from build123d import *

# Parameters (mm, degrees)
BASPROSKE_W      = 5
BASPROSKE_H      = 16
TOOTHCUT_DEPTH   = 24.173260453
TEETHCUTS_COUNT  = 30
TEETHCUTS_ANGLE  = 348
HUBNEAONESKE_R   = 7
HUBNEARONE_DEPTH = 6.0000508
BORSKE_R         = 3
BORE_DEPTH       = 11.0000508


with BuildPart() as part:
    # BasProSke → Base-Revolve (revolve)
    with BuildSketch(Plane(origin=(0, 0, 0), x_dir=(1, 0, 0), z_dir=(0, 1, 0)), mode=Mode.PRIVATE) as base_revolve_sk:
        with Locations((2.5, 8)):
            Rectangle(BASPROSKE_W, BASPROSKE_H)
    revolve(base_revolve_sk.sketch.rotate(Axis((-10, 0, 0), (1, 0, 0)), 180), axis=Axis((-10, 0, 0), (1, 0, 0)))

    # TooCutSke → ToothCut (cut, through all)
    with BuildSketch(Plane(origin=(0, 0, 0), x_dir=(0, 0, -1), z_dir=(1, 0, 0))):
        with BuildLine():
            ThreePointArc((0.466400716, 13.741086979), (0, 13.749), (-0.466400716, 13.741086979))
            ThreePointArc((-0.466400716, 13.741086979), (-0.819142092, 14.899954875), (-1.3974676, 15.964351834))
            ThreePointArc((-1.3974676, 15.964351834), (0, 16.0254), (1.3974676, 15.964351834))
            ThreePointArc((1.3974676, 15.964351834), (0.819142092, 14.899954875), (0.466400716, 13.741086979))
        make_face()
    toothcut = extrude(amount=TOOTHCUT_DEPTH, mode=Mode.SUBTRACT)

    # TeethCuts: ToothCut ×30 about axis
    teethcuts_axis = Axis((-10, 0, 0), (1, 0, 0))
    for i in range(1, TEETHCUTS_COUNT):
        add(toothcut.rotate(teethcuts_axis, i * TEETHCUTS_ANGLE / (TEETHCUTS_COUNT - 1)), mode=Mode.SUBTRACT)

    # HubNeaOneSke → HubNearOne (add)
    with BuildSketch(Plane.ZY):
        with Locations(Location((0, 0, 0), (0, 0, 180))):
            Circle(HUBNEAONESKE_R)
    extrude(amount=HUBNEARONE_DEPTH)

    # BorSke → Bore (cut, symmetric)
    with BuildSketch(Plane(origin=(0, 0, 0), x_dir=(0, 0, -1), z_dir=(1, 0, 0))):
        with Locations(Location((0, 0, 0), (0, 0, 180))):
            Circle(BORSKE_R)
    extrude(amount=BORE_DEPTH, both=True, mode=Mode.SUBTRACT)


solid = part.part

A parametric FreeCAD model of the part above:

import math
import FreeCAD as App
import Part
import Sketcher


def add_polygon(sketch, points):
    """Adds a closed chain of lines whose ends are joined by coincident constraints."""
    first, n = sketch.GeometryCount, len(points)
    for a, b in zip(points, points[1:] + points[:1]):
        sketch.addGeometry(Part.LineSegment(App.Vector(*a, 0), App.Vector(*b, 0)), False)
    for i in range(n):
        sketch.addConstraint(Sketcher.Constraint("Coincident", first + i, 2, first + (i + 1) % n, 1))

doc = App.newDocument("Part")
body = doc.addObject("PartDesign::Body", "Body")

sketch1 = body.newObject("Sketcher::SketchObject", "Sketch")
sketch1.AttachmentSupport = (doc.getObject("XZ_Plane"), [""])
sketch1.MapMode = "FlatFace"
add_polygon(sketch1, [(0, -16), (0, 0), (5, 0), (5, -16)])
sketch1.addConstraint([
    Sketcher.Constraint("Vertical", 0),
    Sketcher.Constraint("Horizontal", 1),
    Sketcher.Constraint("Vertical", 2),
    Sketcher.Constraint("Horizontal", 3),
    Sketcher.Constraint("Coincident", 0, 2, -1, 1),
    Sketcher.Constraint("DistanceX", 1, 1, 1, 2, 5.0),
    Sketcher.Constraint("DistanceY", 0, 1, 0, 2, 16.0),
])
revolution = body.newObject("PartDesign::Revolution", "Revolution")
revolution.Profile = sketch1
revolution.ReferenceAxis = (sketch1, ["H_Axis"])
revolution.Angle = 360

sketch2 = body.newObject("Sketcher::SketchObject", "Sketch001")
sketch2.AttachmentSupport = (doc.getObject("YZ_Plane"), [""])
sketch2.MapMode = "FlatFace"
sketch2.addGeometry([
    Part.ArcOfCircle(Part.Circle(App.Vector(0, 0, 0), App.Vector(0, 0, 1), 13.7), math.radians(-1.94), math.radians(1.94)),
    Part.ArcOfCircle(Part.Circle(App.Vector(12.6, -6.4, 0), App.Vector(0, 0, 1), 6), math.radians(56), math.radians(79)),
    Part.ArcOfCircle(Part.Circle(App.Vector(0, 0, 0), App.Vector(0, 0, 1), 16), math.radians(-5), math.radians(5)),
    Part.ArcOfCircle(Part.Circle(App.Vector(12.6, 6.4, 0), App.Vector(0, 0, 1), 6), math.radians(-79), math.radians(-56)),
], False)
sketch2.addConstraint([
    Sketcher.Constraint("Coincident", 0, 1, 1, 2),
    Sketcher.Constraint("Coincident", 1, 1, 2, 1),
    Sketcher.Constraint("Coincident", 2, 2, 3, 2),
    Sketcher.Constraint("Coincident", 3, 1, 0, 2),
    Sketcher.Constraint("Coincident", 0, 3, -1, 1),
    Sketcher.Constraint("Coincident", 2, 3, -1, 1),
    Sketcher.Constraint("Equal", 1, 3),
    Sketcher.Constraint("Symmetric", 1, 3, 3, 3, -1),
    Sketcher.Constraint("Radius", 1, 6.0),
    Sketcher.Constraint("Radius", 0, 13.749),
    Sketcher.Constraint("Radius", 2, 16.0254),
    Sketcher.Constraint("DistanceY", 0, 1, -1, 1, 0.466401),
    Sketcher.Constraint("DistanceX", -1, 1, 1, 1, 15.964352),
])
pocket1 = body.newObject("PartDesign::Pocket", "Pocket")
pocket1.Profile = sketch2
pocket1.Type = "ThroughAll"
pocket1.Reversed = True
doc.recompute()

polarpattern = body.newObject("PartDesign::PolarPattern", "PolarPattern")
polarpattern.Originals = [pocket1]
polarpattern.Axis = (doc.getObject("X_Axis"), [""])
polarpattern.Angle = 360
polarpattern.Occurrences = 30
body.Tip = polarpattern

sketch3 = body.newObject("Sketcher::SketchObject", "Sketch002")
sketch3.AttachmentSupport = (doc.getObject("YZ_Plane"), [""])
sketch3.MapMode = "FlatFace"
sketch3.addGeometry(Part.Circle(App.Vector(0, 0, 0), App.Vector(0, 0, 1), 7), False)
sketch3.addConstraint([
    Sketcher.Constraint("Coincident", 0, 3, -1, 1),
    Sketcher.Constraint("Diameter", 0, 14.0),
])
pad1 = body.newObject("PartDesign::Pad", "Pad")
pad1.Profile = sketch3
pad1.Length = 6.000051
pad1.Reversed = True

sketch4 = body.newObject("Sketcher::SketchObject", "Sketch003")
sketch4.AttachmentSupport = (doc.getObject("YZ_Plane"), [""])
sketch4.MapMode = "FlatFace"
sketch4.addGeometry(Part.Circle(App.Vector(0, 0, 0), App.Vector(0, 0, 1), 3), False)
sketch4.addConstraint([
    Sketcher.Constraint("Coincident", 0, 3, -1, 1),
    Sketcher.Constraint("Diameter", 0, 6.0),
])
pocket2 = body.newObject("PartDesign::Pocket", "Pocket001")
pocket2.Profile = sketch4
pocket2.Length = 22.000102
pocket2.Midplane = True

doc.recompute()
